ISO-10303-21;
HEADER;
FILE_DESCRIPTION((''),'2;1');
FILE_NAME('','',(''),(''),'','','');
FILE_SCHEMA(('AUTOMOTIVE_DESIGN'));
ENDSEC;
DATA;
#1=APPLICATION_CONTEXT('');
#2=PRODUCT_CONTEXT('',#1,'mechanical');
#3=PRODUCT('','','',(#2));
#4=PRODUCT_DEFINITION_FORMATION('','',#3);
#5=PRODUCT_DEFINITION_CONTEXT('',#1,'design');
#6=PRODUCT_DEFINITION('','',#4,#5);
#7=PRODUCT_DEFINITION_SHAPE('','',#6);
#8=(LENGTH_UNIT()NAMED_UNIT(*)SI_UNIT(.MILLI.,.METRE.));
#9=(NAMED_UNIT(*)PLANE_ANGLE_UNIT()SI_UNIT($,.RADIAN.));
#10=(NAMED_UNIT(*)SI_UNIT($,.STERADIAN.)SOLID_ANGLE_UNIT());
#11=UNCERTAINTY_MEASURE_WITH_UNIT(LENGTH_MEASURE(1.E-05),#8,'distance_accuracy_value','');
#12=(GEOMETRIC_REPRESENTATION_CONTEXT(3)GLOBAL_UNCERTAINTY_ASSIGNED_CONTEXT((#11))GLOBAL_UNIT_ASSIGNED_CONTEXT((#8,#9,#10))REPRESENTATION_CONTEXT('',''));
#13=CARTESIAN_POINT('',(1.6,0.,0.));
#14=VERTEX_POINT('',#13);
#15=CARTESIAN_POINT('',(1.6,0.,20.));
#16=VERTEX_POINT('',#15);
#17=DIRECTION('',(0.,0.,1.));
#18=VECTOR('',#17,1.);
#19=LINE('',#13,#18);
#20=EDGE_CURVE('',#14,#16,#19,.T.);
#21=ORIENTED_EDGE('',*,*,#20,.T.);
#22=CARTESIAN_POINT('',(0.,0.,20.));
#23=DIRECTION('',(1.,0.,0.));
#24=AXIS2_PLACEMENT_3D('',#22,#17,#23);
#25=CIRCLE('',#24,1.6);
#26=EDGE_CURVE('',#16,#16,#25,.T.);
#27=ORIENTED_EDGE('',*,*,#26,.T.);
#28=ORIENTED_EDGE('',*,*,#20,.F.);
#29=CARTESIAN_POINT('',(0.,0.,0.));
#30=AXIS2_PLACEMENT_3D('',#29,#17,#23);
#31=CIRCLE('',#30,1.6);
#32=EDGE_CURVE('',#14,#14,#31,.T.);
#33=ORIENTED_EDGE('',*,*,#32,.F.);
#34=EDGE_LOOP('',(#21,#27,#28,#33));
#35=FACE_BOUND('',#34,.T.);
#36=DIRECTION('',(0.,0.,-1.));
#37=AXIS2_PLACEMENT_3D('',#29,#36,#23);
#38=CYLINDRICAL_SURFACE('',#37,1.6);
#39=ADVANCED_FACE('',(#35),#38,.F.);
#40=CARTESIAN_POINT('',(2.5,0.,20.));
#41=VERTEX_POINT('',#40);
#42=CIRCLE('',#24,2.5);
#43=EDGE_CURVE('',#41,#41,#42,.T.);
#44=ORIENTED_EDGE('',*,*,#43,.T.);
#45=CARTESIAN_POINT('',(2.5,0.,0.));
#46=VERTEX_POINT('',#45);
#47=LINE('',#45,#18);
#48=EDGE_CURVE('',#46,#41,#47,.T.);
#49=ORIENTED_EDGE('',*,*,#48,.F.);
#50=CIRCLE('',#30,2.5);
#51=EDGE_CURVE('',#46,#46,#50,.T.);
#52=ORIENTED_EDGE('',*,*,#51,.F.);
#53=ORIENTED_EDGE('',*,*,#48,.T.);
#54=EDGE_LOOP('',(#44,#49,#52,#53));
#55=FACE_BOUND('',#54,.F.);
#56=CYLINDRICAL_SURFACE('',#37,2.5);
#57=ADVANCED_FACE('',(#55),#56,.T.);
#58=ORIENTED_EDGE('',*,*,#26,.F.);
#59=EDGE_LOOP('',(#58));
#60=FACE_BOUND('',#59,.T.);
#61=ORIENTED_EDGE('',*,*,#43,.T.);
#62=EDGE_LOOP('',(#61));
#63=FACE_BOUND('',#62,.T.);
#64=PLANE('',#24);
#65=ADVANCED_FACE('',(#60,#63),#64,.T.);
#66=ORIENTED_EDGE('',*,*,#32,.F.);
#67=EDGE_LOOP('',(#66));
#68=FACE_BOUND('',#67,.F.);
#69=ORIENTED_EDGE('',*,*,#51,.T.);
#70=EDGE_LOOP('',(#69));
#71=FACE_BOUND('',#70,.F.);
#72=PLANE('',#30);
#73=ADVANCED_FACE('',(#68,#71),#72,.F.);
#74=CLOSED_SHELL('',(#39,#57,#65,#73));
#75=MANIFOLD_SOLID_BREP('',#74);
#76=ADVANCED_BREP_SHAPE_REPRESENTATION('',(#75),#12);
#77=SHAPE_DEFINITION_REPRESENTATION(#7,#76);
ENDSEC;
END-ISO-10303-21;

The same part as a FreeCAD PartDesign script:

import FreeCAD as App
import Part
import Sketcher

V = App.Vector

doc = App.newDocument("Part")
params = doc.addObject("Spreadsheet::Sheet", "Params")
for row, (alias, value) in enumerate([
    ("sketch1_diameter", "5 mm"),
    ("sketch1_diameter2", "3.2 mm"),
    ("pad1_length", "20 mm"),
], start=1):
    params.set(f"A{row}", alias)
    params.set(f"B{row}", "=" + value)
    params.setAlias(f"B{row}", alias)

body = doc.addObject("PartDesign::Body", "Body")

# Sketch on XY plane
sketch1 = body.newObject("Sketcher::SketchObject", "Sketch")
sketch1.AttachmentSupport = (doc.getObject("XY_Plane"), [""])
sketch1.MapMode = "FlatFace"
sketch1.addGeometry([
    Part.Circle(V(0, 0, 0), V(0, 0, 1), 2.5),
    Part.Circle(V(0, 0, 0), V(0, 0, 1), 1.6),
], False)
sketch1.addConstraint([
    Sketcher.Constraint("Coincident", 0, 3, -1, 1),
    Sketcher.Constraint("Coincident", 1, 3, -1, 1),
    Sketcher.Constraint("Diameter", 0, 5.0),
    Sketcher.Constraint("Diameter", 1, 3.2),
])
sketch1.setExpression("Constraints[2]", "Params.sketch1_diameter")
sketch1.setExpression("Constraints[3]", "Params.sketch1_diameter2")
pad1 = body.newObject("PartDesign::Pad", "Pad")
pad1.Profile = sketch1
pad1.setExpression("Length", "Params.pad1_length")

doc.recompute()
